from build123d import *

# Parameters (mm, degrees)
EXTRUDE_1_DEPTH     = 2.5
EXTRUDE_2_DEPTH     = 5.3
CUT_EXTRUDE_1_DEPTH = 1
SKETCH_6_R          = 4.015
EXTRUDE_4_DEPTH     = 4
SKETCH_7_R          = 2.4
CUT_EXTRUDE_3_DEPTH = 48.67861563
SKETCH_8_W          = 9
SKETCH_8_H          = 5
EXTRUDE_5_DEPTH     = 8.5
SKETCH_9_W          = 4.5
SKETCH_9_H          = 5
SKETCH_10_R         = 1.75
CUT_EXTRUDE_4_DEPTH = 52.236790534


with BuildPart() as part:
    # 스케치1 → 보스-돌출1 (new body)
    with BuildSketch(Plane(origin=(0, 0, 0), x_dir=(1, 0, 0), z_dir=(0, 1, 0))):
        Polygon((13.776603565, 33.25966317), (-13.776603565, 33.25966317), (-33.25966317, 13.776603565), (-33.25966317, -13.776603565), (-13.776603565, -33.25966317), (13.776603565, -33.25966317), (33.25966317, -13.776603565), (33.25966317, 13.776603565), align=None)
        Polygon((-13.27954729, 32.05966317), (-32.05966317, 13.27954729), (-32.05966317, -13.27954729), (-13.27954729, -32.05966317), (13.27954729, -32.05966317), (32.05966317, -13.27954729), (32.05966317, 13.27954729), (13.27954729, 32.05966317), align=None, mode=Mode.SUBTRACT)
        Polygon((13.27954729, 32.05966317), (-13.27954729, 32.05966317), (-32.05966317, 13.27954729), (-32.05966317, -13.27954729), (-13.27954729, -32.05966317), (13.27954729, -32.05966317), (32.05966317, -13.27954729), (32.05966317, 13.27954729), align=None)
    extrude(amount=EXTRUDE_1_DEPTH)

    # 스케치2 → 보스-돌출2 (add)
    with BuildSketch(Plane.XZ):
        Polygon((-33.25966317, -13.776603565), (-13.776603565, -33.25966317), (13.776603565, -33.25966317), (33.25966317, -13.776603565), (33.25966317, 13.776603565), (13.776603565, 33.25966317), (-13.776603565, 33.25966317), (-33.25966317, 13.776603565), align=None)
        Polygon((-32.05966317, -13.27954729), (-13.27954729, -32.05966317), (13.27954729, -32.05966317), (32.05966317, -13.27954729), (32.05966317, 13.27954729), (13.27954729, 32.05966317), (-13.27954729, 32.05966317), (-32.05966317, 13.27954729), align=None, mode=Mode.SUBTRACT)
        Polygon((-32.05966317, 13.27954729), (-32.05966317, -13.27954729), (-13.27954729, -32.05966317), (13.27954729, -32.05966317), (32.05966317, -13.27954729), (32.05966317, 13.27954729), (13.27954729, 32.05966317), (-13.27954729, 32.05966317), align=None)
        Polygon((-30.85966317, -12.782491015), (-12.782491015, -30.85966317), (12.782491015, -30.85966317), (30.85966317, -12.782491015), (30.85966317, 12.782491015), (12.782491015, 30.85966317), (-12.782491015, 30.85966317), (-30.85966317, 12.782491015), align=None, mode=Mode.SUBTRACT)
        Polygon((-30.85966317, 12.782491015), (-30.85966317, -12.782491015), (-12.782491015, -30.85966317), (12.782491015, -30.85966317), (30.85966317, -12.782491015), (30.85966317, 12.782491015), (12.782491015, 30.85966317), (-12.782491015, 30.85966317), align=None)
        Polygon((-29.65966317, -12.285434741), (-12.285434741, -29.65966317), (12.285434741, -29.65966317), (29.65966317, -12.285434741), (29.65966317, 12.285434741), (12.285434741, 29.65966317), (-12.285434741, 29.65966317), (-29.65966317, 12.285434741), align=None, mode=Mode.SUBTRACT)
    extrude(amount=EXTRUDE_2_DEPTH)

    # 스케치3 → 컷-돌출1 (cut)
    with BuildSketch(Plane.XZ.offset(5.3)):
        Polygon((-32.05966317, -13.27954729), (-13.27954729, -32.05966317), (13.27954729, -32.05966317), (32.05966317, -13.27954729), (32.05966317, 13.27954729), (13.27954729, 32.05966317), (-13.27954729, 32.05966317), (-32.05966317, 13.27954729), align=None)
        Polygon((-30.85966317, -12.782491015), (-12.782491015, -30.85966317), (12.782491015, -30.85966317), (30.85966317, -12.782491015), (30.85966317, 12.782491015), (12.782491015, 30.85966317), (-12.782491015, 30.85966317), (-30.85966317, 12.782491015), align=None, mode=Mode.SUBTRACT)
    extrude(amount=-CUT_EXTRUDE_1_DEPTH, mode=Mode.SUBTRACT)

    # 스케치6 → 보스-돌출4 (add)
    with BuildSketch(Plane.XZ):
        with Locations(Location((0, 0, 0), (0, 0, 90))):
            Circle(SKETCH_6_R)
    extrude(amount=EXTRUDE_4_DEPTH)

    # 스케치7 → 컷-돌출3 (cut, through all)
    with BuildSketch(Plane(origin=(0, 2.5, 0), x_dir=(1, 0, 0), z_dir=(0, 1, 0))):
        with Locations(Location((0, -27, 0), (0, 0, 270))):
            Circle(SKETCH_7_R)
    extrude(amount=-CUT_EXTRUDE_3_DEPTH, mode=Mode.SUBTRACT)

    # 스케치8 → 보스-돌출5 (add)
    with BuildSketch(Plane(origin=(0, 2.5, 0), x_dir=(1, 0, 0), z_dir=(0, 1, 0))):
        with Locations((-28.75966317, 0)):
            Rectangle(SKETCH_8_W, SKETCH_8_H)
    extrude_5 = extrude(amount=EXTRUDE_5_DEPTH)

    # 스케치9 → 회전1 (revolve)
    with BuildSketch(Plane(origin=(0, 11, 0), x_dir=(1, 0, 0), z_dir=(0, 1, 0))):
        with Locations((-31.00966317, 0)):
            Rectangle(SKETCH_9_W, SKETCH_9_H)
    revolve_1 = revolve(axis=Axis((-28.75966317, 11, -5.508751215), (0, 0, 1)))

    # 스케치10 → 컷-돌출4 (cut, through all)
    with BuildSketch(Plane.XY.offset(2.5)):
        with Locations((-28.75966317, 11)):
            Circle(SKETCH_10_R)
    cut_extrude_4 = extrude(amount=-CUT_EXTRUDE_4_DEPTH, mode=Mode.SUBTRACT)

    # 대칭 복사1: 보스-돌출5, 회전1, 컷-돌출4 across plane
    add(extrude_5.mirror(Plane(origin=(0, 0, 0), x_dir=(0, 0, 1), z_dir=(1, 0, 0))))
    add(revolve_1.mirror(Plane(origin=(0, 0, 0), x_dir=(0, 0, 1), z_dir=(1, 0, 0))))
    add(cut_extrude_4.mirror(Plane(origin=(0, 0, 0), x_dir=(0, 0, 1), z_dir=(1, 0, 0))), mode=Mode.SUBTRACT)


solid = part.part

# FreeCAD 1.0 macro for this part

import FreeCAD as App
import Part
import Sketcher
Q = App.Units.Quantity

doc = App.newDocument("Part")
body = doc.addObject("PartDesign::Body", "Body")

# Sketch on XZ plane
sketch1 = body.newObject("Sketcher::SketchObject", "Sketch")
sketch1.AttachmentSupport = (doc.getObject("XZ_Plane"), [""])
sketch1.MapMode = "FlatFace"
sketch1.addGeometry([
    Part.LineSegment(App.Vector(13.776604, -33.259663, 0), App.Vector(-13.776604, -33.259663, 0)),  # 0
    Part.LineSegment(App.Vector(-13.776604, -33.259663, 0), App.Vector(-33.259663, -13.776604, 0)),  # 1
    Part.LineSegment(App.Vector(-33.259663, -13.776604, 0), App.Vector(-33.259663, 13.776604, 0)),  # 2
    Part.LineSegment(App.Vector(-33.259663, 13.776604, 0), App.Vector(-13.776604, 33.259663, 0)),  # 3
    Part.LineSegment(App.Vector(-13.776604, 33.259663, 0), App.Vector(13.776604, 33.259663, 0)),  # 4
    Part.LineSegment(App.Vector(13.776604, 33.259663, 0), App.Vector(33.259663, 13.776604, 0)),  # 5
    Part.LineSegment(App.Vector(33.259663, 13.776604, 0), App.Vector(33.259663, -13.776604, 0)),  # 6
    Part.LineSegment(App.Vector(33.259663, -13.776604, 0), App.Vector(13.776604, -33.259663, 0)),  # 7
], False)
sketch1.addConstraint([
    Sketcher.Constraint("Coincident", 0, 2, 1, 1),
    Sketcher.Constraint("Coincident", 1, 2, 2, 1),
    Sketcher.Constraint("Coincident", 2, 2, 3, 1),
    Sketcher.Constraint("Coincident", 3, 2, 4, 1),
    Sketcher.Constraint("Coincident", 4, 2, 5, 1),
    Sketcher.Constraint("Coincident", 5, 2, 6, 1),
    Sketcher.Constraint("Coincident", 6, 2, 7, 1),
    Sketcher.Constraint("Coincident", 7, 2, 0, 1),
    Sketcher.Constraint("Horizontal", 0),
    Sketcher.Constraint("Vertical", 2),
    Sketcher.Constraint("Horizontal", 4),
    Sketcher.Constraint("Vertical", 6),
    Sketcher.Constraint("Symmetric", 0, 2, 4, 2, -1, 1),
    Sketcher.Constraint("Symmetric", 1, 2, 5, 2, -1, 1),
    Sketcher.Constraint("Perpendicular", 1, 3),
    Sketcher.Constraint("Perpendicular", 5, 7),
    Sketcher.Constraint("Horizontal", 2, 2, 5, 2),
    Sketcher.Constraint("Horizontal", 1, 2, 6, 2),
    Sketcher.Constraint("Vertical", 0, 2, 3, 2),
    Sketcher.Constraint("Equal", 4, 2),
    Sketcher.Constraint("DistanceX", 0, 2, 0, 1, Q("27.553207 mm")),
    Sketcher.Constraint("DistanceX", 1, 2, 0, 2, Q("19.48306 mm")),
])
pad1 = body.newObject("PartDesign::Pad", "Pad")
pad1.Profile = sketch1
pad1.Length = 2.5
pad1.Reversed = True

# Sketch on XZ plane
sketch2 = body.newObject("Sketcher::SketchObject", "Sketch001")
sketch2.AttachmentSupport = (doc.getObject("XZ_Plane"), [""])
sketch2.MapMode = "FlatFace"
sketch2.addGeometry([
    Part.LineSegment(App.Vector(-33.259663, -13.776604, 0), App.Vector(-13.776604, -33.259663, 0)),  # 0
    Part.LineSegment(App.Vector(-13.776604, -33.259663, 0), App.Vector(13.776604, -33.259663, 0)),  # 1
    Part.LineSegment(App.Vector(13.776604, -33.259663, 0), App.Vector(33.259663, -13.776604, 0)),  # 2
    Part.LineSegment(App.Vector(33.259663, -13.776604, 0), App.Vector(33.259663, 13.776604, 0)),  # 3
    Part.LineSegment(App.Vector(33.259663, 13.776604, 0), App.Vector(13.776604, 33.259663, 0)),  # 4
    Part.LineSegment(App.Vector(13.776604, 33.259663, 0), App.Vector(-13.776604, 33.259663, 0)),  # 5
    Part.LineSegment(App.Vector(-13.776604, 33.259663, 0), App.Vector(-33.259663, 13.776604, 0)),  # 6
    Part.LineSegment(App.Vector(-33.259663, 13.776604, 0), App.Vector(-33.259663, -13.776604, 0)),  # 7
    Part.LineSegment(App.Vector(-12.285435, -29.659663, 0), App.Vector(-29.659663, -12.285435, 0)),  # 8
    Part.LineSegment(App.Vector(-29.659663, -12.285435, 0), App.Vector(-29.659663, 12.285435, 0)),  # 9
    Part.LineSegment(App.Vector(-29.659663, 12.285435, 0), App.Vector(-12.285435, 29.659663, 0)),  # 10
    Part.LineSegment(App.Vector(-12.285435, 29.659663, 0), App.Vector(12.285435, 29.659663, 0)),  # 11
    Part.LineSegment(App.Vector(12.285435, 29.659663, 0), App.Vector(29.659663, 12.285435, 0)),  # 12
    Part.LineSegment(App.Vector(29.659663, 12.285435, 0), App.Vector(29.659663, -12.285435, 0)),  # 13
    Part.LineSegment(App.Vector(29.659663, -12.285435, 0), App.Vector(12.285435, -29.659663, 0)),  # 14
    Part.LineSegment(App.Vector(12.285435, -29.659663, 0), App.Vector(-12.285435, -29.659663, 0)),  # 15
], False)
sketch2.addConstraint([
    Sketcher.Constraint("Coincident", 0, 2, 1, 1),
    Sketcher.Constraint("Coincident", 1, 2, 2, 1),
    Sketcher.Constraint("Coincident", 2, 2, 3, 1),
    Sketcher.Constraint("Coincident", 3, 2, 4, 1),
    Sketcher.Constraint("Coincident", 4, 2, 5, 1),
    Sketcher.Constraint("Coincident", 5, 2, 6, 1),
    Sketcher.Constraint("Coincident", 6, 2, 7, 1),
    Sketcher.Constraint("Coincident", 7, 2, 0, 1),
    Sketcher.Constraint("Coincident", 8, 2, 9, 1),
    Sketcher.Constraint("Coincident", 9, 2, 10, 1),
    Sketcher.Constraint("Coincident", 10, 2, 11, 1),
    Sketcher.Constraint("Coincident", 11, 2, 12, 1),
    Sketcher.Constraint("Coincident", 12, 2, 13, 1),
    Sketcher.Constraint("Coincident", 13, 2, 14, 1),
    Sketcher.Constraint("Coincident", 14, 2, 15, 1),
    Sketcher.Constraint("Coincident", 15, 2, 8, 1),
    Sketcher.Constraint("Horizontal", 1),
    Sketcher.Constraint("Vertical", 3),
    Sketcher.Constraint("Horizontal", 5),
    Sketcher.Constraint("Vertical", 7),
    Sketcher.Constraint("Vertical", 9),
    Sketcher.Constraint("Horizontal", 11),
    Sketcher.Constraint("Vertical", 13),
    Sketcher.Constraint("Horizontal", 15),
    Sketcher.Constraint("Symmetric", 0, 2, 4, 2, -1, 1),
    Sketcher.Constraint("Symmetric", 2, 2, 6, 2, -1, 1),
    Sketcher.Constraint("Symmetric", 8, 2, 12, 2, -1, 1),
    Sketcher.Constraint("Symmetric", 10, 2, 14, 2, -1, 1),
    Sketcher.Constraint("Perpendicular", 0, 2),
    Sketcher.Constraint("Perpendicular", 2, 4),
    Sketcher.Constraint("Perpendicular", 4, 6),
    Sketcher.Constraint("Perpendicular", 6, 8),
    Sketcher.Constraint("Perpendicular", 8, 10),
    Sketcher.Constraint("Perpendicular", 10, 12),
    Sketcher.Constraint("Perpendicular", 12, 14),
    Sketcher.Constraint("Horizontal", 3, 2, 6, 2),
    Sketcher.Constraint("Horizontal", 9, 2, 12, 2),
    Sketcher.Constraint("Vertical", 1, 2, 4, 2),
    Sketcher.Constraint("Equal", 5, 3),
    Sketcher.Constraint("Equal", 15, 9),
    Sketcher.Constraint("DistanceX", 7, 2, 8, 2, Q("3.6 mm")),
    Sketcher.Constraint("DistanceX", 11, 1, 11, 2, Q("24.570869 mm")),
    Sketcher.Constraint("Distance", 8, Q("24.570869 mm")),
    Sketcher.Constraint("DistanceX", 1, 1, 1, 2, Q("27.553207 mm")),
])
pad2 = body.newObject("PartDesign::Pad", "Pad001")
pad2.Profile = sketch2
pad2.Length = 5.3

# Sketch on XZ plane
sketch3 = body.newObject("Sketcher::SketchObject", "Sketch002")
sketch3.AttachmentSupport = (doc.getObject("XZ_Plane"), [""])
sketch3.MapMode = "FlatFace"
sketch3.AttachmentOffset = App.Placement(App.Vector(0, 0, 5.3), App.Rotation())
sketch3.addGeometry([
    Part.LineSegment(App.Vector(-32.059663, -13.279547, 0), App.Vector(-13.279547, -32.059663, 0)),  # 0
    Part.LineSegment(App.Vector(-13.279547, -32.059663, 0), App.Vector(13.279547, -32.059663, 0)),  # 1
    Part.LineSegment(App.Vector(13.279547, -32.059663, 0), App.Vector(32.059663, -13.279547, 0)),  # 2
    Part.LineSegment(App.Vector(32.059663, -13.279547, 0), App.Vector(32.059663, 13.279547, 0)),  # 3
    Part.LineSegment(App.Vector(32.059663, 13.279547, 0), App.Vector(13.279547, 32.059663, 0)),  # 4
    Part.LineSegment(App.Vector(13.279547, 32.059663, 0), App.Vector(-13.279547, 32.059663, 0)),  # 5
    Part.LineSegment(App.Vector(-13.279547, 32.059663, 0), App.Vector(-32.059663, 13.279547, 0)),  # 6
    Part.LineSegment(App.Vector(-32.059663, 13.279547, 0), App.Vector(-32.059663, -13.279547, 0)),  # 7
    Part.LineSegment(App.Vector(-12.782491, -30.859663, 0), App.Vector(-30.859663, -12.782491, 0)),  # 8
    Part.LineSegment(App.Vector(-30.859663, -12.782491, 0), App.Vector(-30.859663, 12.782491, 0)),  # 9
    Part.LineSegment(App.Vector(-30.859663, 12.782491, 0), App.Vector(-12.782491, 30.859663, 0)),  # 10
    Part.LineSegment(App.Vector(-12.782491, 30.859663, 0), App.Vector(12.782491, 30.859663, 0)),  # 11
    Part.LineSegment(App.Vector(12.782491, 30.859663, 0), App.Vector(30.859663, 12.782491, 0)),  # 12
    Part.LineSegment(App.Vector(30.859663, 12.782491, 0), App.Vector(30.859663, -12.782491, 0)),  # 13
    Part.LineSegment(App.Vector(30.859663, -12.782491, 0), App.Vector(12.782491, -30.859663, 0)),  # 14
    Part.LineSegment(App.Vector(12.782491, -30.859663, 0), App.Vector(-12.782491, -30.859663, 0)),  # 15
], False)
sketch3.addConstraint([
    Sketcher.Constraint("Coincident", 0, 2, 1, 1),
    Sketcher.Constraint("Coincident", 1, 2, 2, 1),
    Sketcher.Constraint("Coincident", 2, 2, 3, 1),
    Sketcher.Constraint("Coincident", 3, 2, 4, 1),
    Sketcher.Constraint("Coincident", 4, 2, 5, 1),
    Sketcher.Constraint("Coincident", 5, 2, 6, 1),
    Sketcher.Constraint("Coincident", 6, 2, 7, 1),
    Sketcher.Constraint("Coincident", 7, 2, 0, 1),
    Sketcher.Constraint("Coincident", 8, 2, 9, 1),
    Sketcher.Constraint("Coincident", 9, 2, 10, 1),
    Sketcher.Constraint("Coincident", 10, 2, 11, 1),
    Sketcher.Constraint("Coincident", 11, 2, 12, 1),
    Sketcher.Constraint("Coincident", 12, 2, 13, 1),
    Sketcher.Constraint("Coincident", 13, 2, 14, 1),
    Sketcher.Constraint("Coincident", 14, 2, 15, 1),
    Sketcher.Constraint("Coincident", 15, 2, 8, 1),
    Sketcher.Constraint("Horizontal", 1),
    Sketcher.Constraint("Vertical", 3),
    Sketcher.Constraint("Horizontal", 5),
    Sketcher.Constraint("Vertical", 7),
    Sketcher.Constraint("Vertical", 9),
    Sketcher.Constraint("Horizontal", 11),
    Sketcher.Constraint("Vertical", 13),
    Sketcher.Constraint("Horizontal", 15),
    Sketcher.Constraint("Symmetric", 0, 2, 4, 2, -1, 1),
    Sketcher.Constraint("Symmetric", 2, 2, 6, 2, -1, 1),
    Sketcher.Constraint("Symmetric", 8, 2, 12, 2, -1, 1),
    Sketcher.Constraint("Symmetric", 10, 2, 14, 2, -1, 1),
    Sketcher.Constraint("Perpendicular", 0, 2),
    Sketcher.Constraint("Perpendicular", 2, 4),
    Sketcher.Constraint("Perpendicular", 4, 6),
    Sketcher.Constraint("Perpendicular", 6, 8),
    Sketcher.Constraint("Perpendicular", 8, 10),
    Sketcher.Constraint("Perpendicular", 10, 12),
    Sketcher.Constraint("Perpendicular", 12, 14),
    Sketcher.Constraint("Horizontal", 3, 2, 6, 2),
    Sketcher.Constraint("Horizontal", 9, 2, 12, 2),
    Sketcher.Constraint("Vertical", 1, 2, 4, 2),
    Sketcher.Constraint("Equal", 5, 3),
    Sketcher.Constraint("Equal", 15, 9),
    Sketcher.Constraint("DistanceX", 7, 2, 8, 2, Q("1.2 mm")),
    Sketcher.Constraint("DistanceX", 1, 1, 1, 2, Q("26.559095 mm")),
    Sketcher.Constraint("DistanceX", 11, 1, 11, 2, Q("25.564982 mm")),
    Sketcher.Constraint("DistanceX", 0, 2, 2, 2, Q("45.33921 mm")),
])
pocket1 = body.newObject("PartDesign::Pocket", "Pocket")
pocket1.Profile = sketch3
pocket1.Length = 1

# Sketch on XZ plane
sketch4 = body.newObject("Sketcher::SketchObject", "Sketch003")
sketch4.AttachmentSupport = (doc.getObject("XZ_Plane"), [""])
sketch4.MapMode = "FlatFace"
sketch4.addGeometry(Part.Circle(App.Vector(0, 0, 0), App.Vector(0, 0, 1), 4.015), False)
sketch4.addConstraint([
    Sketcher.Constraint("Coincident", 0, 3, -1, 1),
    Sketcher.Constraint("Diameter", 0, Q("8.03 mm")),
])
pad3 = body.newObject("PartDesign::Pad", "Pad002")
pad3.Profile = sketch4
pad3.Length = 4

# Sketch on XZ plane
sketch5 = body.newObject("Sketcher::SketchObject", "Sketch004")
sketch5.AttachmentSupport = (doc.getObject("XZ_Plane"), [""])
sketch5.MapMode = "FlatFace"
sketch5.AttachmentOffset = App.Placement(App.Vector(0, 0, -2.5), App.Rotation())
sketch5.addGeometry(Part.Circle(App.Vector(0, 27, 0), App.Vector(0, 0, 1), 2.4), False)
sketch5.addConstraint([
    Sketcher.Constraint("PointOnObject", 0, 3, -2),
    Sketcher.Constraint("Diameter", 0, Q("4.8 mm")),
    Sketcher.Constraint("DistanceY", -1, 1, 0, 3, Q("27 mm")),
])
pocket2 = body.newObject("PartDesign::Pocket", "Pocket001")
pocket2.Profile = sketch5
pocket2.Type = "ThroughAll"
pocket2.Reversed = True

# Sketch on XZ plane
sketch6 = body.newObject("Sketcher::SketchObject", "Sketch005")
sketch6.AttachmentSupport = (doc.getObject("XZ_Plane"), [""])
sketch6.MapMode = "FlatFace"
sketch6.AttachmentOffset = App.Placement(App.Vector(0, 0, -2.5), App.Rotation())
sketch6.addGeometry([
    Part.LineSegment(App.Vector(-33.259663, -2.5, 0), App.Vector(-33.259663, 2.5, 0)),
    Part.LineSegment(App.Vector(-33.259663, 2.5, 0), App.Vector(-24.259663, 2.5, 0)),
    Part.LineSegment(App.Vector(-24.259663, 2.5, 0), App.Vector(-24.259663, -2.5, 0)),
    Part.LineSegment(App.Vector(-24.259663, -2.5, 0), App.Vector(-33.259663, -2.5, 0)),
], False)
sketch6.addConstraint([
    Sketcher.Constraint("Coincident", 0, 2, 1, 1),
    Sketcher.Constraint("Coincident", 1, 2, 2, 1),
    Sketcher.Constraint("Coincident", 2, 2, 3, 1),
    Sketcher.Constraint("Coincident", 3, 2, 0, 1),
    Sketcher.Constraint("Vertical", 0),
    Sketcher.Constraint("Horizontal", 1),
    Sketcher.Constraint("Vertical", 2),
    Sketcher.Constraint("Horizontal", 3),
    Sketcher.Constraint("DistanceX", 1, 1, 1, 2, Q("9 mm")),
    Sketcher.Constraint("DistanceY", 0, 1, 0, 2, Q("5 mm")),
    Sketcher.Constraint("DistanceY", -1, 1, 0, 2, Q("2.5 mm")),
    Sketcher.Constraint("DistanceX", 0, 2, -1, 1, Q("33.259663 mm")),
])
pad4 = body.newObject("PartDesign::Pad", "Pad003")
pad4.Profile = sketch6
pad4.Length = 8.5
pad4.Reversed = True

# Sketch on XZ plane
sketch7 = body.newObject("Sketcher::SketchObject", "Sketch006")
sketch7.AttachmentSupport = (doc.getObject("XZ_Plane"), [""])
sketch7.MapMode = "FlatFace"
sketch7.AttachmentOffset = App.Placement(App.Vector(0, 0, -11), App.Rotation())
sketch7.addGeometry([
    Part.LineSegment(App.Vector(-33.259663, -2.5, 0), App.Vector(-33.259663, 2.5, 0)),
    Part.LineSegment(App.Vector(-33.259663, 2.5, 0), App.Vector(-28.759663, 2.5, 0)),
    Part.LineSegment(App.Vector(-28.759663, 2.5, 0), App.Vector(-28.759663, -2.5, 0)),
    Part.LineSegment(App.Vector(-28.759663, -2.5, 0), App.Vector(-33.259663, -2.5, 0)),
], False)
sketch7.addGeometry(Part.LineSegment(App.Vector(-28.759663, -2.5, 0), App.Vector(-28.759663, 2.5, 0)), True)  # axis
sketch7.addConstraint([
    Sketcher.Constraint("Coincident", 0, 2, 1, 1),
    Sketcher.Constraint("Coincident", 1, 2, 2, 1),
    Sketcher.Constraint("Coincident", 2, 2, 3, 1),
    Sketcher.Constraint("Coincident", 3, 2, 0, 1),
    Sketcher.Constraint("Vertical", 0),
    Sketcher.Constraint("Horizontal", 1),
    Sketcher.Constraint("Vertical", 2),
    Sketcher.Constraint("Horizontal", 3),
    Sketcher.Constraint("Vertical", 4),
    Sketcher.Constraint("Coincident", 4, 1, 2, 2),
    Sketcher.Constraint("Horizontal", 0, 2, 4, 2),
    Sketcher.Constraint("DistanceY", 0, 1, 0, 2, Q("5 mm")),
    Sketcher.Constraint("DistanceX", 1, 1, 1, 2, Q("4.5 mm")),
    Sketcher.Constraint("DistanceY", -1, 1, 0, 2, Q("2.5 mm")),
    Sketcher.Constraint("DistanceX", 0, 2, -1, 1, Q("33.259663 mm")),
])
revolution = body.newObject("PartDesign::Revolution", "Revolution")
revolution.Profile = sketch7
revolution.ReferenceAxis = (sketch7, ["Axis0"])
revolution.Angle = 360

# Sketch on XY plane
sketch8 = body.newObject("Sketcher::SketchObject", "Sketch007")
sketch8.AttachmentSupport = (doc.getObject("XY_Plane"), [""])
sketch8.MapMode = "FlatFace"
sketch8.AttachmentOffset = App.Placement(App.Vector(0, 0, 2.5), App.Rotation())
sketch8.addGeometry(Part.Circle(App.Vector(-28.759663, 11, 0), App.Vector(0, 0, 1), 1.75), False)
sketch8.addConstraint([
    Sketcher.Constraint("Diameter", 0, Q("3.5 mm")),
    Sketcher.Constraint("DistanceY", -1, 1, 0, 3, Q("11 mm")),
    Sketcher.Constraint("DistanceX", 0, 3, -1, 1, Q("28.759663 mm")),
])
pocket3 = body.newObject("PartDesign::Pocket", "Pocket002")
pocket3.Profile = sketch8
pocket3.Type = "ThroughAll"
doc.recompute()

mirrored = body.newObject("PartDesign::Mirrored", "Mirrored")
mirrored.Originals = [pad4, revolution, pocket3]
mirrored.MirrorPlane = (doc.getObject("YZ_Plane"), [""])
body.Tip = mirrored

doc.recompute()
